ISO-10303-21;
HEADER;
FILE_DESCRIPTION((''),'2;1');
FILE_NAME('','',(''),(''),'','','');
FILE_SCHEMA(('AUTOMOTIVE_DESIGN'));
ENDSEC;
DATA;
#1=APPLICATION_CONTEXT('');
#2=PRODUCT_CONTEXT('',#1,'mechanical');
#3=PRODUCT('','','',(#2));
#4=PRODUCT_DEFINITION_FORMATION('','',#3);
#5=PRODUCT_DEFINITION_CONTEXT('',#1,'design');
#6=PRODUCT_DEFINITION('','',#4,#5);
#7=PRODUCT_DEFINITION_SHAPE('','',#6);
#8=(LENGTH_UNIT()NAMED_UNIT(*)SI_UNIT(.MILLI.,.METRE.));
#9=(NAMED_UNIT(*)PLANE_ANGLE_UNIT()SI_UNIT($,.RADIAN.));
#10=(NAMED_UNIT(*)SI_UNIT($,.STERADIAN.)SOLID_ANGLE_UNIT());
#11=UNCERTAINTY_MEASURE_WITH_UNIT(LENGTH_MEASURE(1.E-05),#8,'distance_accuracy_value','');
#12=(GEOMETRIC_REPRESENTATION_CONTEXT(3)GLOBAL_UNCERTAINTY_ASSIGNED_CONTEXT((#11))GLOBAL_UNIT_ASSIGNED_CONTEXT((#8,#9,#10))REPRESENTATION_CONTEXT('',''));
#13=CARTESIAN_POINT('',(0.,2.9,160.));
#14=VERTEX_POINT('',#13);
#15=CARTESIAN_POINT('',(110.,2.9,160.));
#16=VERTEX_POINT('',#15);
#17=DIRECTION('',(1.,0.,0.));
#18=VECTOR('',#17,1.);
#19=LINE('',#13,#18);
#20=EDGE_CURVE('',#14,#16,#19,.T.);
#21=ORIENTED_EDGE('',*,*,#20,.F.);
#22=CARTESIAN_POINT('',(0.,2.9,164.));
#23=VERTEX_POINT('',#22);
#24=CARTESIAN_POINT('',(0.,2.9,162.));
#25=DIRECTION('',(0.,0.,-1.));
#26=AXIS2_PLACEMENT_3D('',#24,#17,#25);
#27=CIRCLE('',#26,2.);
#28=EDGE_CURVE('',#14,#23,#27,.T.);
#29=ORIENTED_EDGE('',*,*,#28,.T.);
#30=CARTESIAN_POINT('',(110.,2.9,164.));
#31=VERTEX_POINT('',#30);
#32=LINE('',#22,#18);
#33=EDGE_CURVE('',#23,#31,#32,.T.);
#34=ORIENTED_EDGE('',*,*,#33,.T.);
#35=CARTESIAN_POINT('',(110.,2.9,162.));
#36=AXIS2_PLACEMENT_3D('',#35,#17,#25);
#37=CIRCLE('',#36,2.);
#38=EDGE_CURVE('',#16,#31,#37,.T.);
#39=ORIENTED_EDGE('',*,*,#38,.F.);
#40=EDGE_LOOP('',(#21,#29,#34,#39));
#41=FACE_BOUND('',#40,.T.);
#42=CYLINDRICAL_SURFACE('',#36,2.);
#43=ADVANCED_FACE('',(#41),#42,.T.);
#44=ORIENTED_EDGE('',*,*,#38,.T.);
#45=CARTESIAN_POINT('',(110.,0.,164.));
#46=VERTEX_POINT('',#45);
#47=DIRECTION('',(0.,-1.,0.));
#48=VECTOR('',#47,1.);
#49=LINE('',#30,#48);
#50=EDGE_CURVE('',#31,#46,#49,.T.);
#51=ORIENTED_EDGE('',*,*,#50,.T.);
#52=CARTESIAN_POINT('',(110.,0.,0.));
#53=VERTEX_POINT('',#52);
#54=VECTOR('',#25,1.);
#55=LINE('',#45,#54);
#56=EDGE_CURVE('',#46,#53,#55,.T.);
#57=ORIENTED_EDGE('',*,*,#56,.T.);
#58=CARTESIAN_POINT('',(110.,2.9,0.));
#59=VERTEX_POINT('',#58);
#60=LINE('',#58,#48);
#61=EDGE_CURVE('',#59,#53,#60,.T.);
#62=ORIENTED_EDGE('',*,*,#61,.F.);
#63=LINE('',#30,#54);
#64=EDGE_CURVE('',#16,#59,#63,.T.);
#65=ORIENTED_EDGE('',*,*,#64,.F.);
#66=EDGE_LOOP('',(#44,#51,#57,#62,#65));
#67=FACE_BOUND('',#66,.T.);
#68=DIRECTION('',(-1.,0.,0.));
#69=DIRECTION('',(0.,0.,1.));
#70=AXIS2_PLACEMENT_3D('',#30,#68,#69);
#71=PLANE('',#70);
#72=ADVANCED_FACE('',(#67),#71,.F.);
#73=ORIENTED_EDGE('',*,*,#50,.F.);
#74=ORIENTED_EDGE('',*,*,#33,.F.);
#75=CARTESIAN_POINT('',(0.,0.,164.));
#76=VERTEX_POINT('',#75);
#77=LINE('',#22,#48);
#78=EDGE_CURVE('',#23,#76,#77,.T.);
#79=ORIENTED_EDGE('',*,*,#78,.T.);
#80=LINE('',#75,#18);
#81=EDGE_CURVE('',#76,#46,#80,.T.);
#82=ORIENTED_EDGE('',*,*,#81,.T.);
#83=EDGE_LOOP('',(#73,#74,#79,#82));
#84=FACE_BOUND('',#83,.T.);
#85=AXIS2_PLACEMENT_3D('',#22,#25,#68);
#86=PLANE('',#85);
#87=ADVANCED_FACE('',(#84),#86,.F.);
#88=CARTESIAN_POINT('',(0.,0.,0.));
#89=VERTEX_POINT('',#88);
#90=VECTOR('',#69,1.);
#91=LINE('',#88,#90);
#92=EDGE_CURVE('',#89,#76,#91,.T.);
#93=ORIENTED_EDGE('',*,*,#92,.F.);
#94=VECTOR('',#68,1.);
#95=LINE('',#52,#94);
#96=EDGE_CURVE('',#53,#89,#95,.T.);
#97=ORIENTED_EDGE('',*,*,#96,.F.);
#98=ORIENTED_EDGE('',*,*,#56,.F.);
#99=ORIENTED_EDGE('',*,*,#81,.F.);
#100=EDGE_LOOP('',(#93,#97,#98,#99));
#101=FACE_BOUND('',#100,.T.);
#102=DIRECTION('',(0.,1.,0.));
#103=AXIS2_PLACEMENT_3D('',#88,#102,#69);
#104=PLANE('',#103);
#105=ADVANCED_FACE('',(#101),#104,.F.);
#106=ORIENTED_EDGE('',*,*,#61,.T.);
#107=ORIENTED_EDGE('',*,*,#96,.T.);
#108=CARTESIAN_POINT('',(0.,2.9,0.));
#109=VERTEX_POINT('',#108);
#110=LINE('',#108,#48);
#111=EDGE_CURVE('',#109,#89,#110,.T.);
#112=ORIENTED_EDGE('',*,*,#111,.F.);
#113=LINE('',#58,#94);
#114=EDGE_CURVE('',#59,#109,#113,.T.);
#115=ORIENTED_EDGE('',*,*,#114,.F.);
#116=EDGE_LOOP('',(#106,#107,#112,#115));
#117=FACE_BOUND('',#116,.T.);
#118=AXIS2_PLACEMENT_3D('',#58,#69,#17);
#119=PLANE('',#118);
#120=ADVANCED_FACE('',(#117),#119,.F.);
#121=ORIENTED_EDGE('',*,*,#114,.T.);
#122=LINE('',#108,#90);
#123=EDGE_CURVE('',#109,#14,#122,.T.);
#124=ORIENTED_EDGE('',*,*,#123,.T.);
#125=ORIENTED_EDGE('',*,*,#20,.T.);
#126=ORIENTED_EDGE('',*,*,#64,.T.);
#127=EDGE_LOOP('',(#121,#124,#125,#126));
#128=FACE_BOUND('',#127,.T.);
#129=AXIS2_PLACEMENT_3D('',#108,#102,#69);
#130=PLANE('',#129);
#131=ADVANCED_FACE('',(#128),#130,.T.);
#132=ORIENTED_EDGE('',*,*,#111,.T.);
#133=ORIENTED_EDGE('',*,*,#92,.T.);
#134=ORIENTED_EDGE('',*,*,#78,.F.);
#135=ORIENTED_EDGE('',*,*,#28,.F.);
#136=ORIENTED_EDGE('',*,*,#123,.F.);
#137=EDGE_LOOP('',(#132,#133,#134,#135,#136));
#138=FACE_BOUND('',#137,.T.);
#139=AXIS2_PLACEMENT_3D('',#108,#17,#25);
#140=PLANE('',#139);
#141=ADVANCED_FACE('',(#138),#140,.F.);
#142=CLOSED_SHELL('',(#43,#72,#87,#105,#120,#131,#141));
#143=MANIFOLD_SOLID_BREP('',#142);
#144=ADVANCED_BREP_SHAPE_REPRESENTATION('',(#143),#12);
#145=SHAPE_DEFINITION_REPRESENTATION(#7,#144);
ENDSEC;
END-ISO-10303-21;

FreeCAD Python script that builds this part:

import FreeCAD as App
import Part
import Sketcher

doc = App.newDocument("Part")
body = doc.addObject("PartDesign::Body", "Body")

sketch1 = body.newObject("Sketcher::SketchObject", "Sketch")
sketch1.AttachmentSupport = (doc.getObject("XZ_Plane"), [""])
sketch1.MapMode = "FlatFace"
sketch1.addGeometry([
    Part.LineSegment(App.Vector(0, 0, 0), App.Vector(0, 164, 0)),
    Part.LineSegment(App.Vector(0, 164, 0), App.Vector(110, 164, 0)),
    Part.LineSegment(App.Vector(110, 164, 0), App.Vector(110, 0, 0)),
    Part.LineSegment(App.Vector(110, 0, 0), App.Vector(0, 0, 0)),
], False)
sketch1.addConstraint([
    Sketcher.Constraint("Coincident", 0, 2, 1, 1),
    Sketcher.Constraint("Coincident", 1, 2, 2, 1),
    Sketcher.Constraint("Coincident", 2, 2, 3, 1),
    Sketcher.Constraint("Coincident", 3, 2, 0, 1),
    Sketcher.Constraint("Vertical", 0),
    Sketcher.Constraint("Horizontal", 1),
    Sketcher.Constraint("Vertical", 2),
    Sketcher.Constraint("Horizontal", 3),
    Sketcher.Constraint("Coincident", 3, 2, -1, 1),
    Sketcher.Constraint("DistanceX", 1, 1, 1, 2, 110.0),
    Sketcher.Constraint("DistanceY", 0, 1, 0, 2, 164.0),
])
pad1 = body.newObject("PartDesign::Pad", "Pad")
pad1.Profile = sketch1
pad1.Length = 2.9
pad1.Reversed = True

sketch2 = body.newObject("Sketcher::SketchObject", "Sketch001")
sketch2.AttachmentSupport = (doc.getObject("XZ_Plane"), [""])
sketch2.MapMode = "FlatFace"
sketch2.AttachmentOffset = App.Placement(App.Vector(0, 0, -2.9), App.Rotation())
sketch2.addGeometry([
    Part.LineSegment(App.Vector(0, 162, 0), App.Vector(0, 164, 0)),
    Part.LineSegment(App.Vector(0, 164, 0), App.Vector(110, 164, 0)),
    Part.LineSegment(App.Vector(110, 164, 0), App.Vector(110, 162, 0)),
    Part.LineSegment(App.Vector(110, 162, 0), App.Vector(0, 162, 0)),
], False)
sketch2.addGeometry(Part.LineSegment(App.Vector(110, 162, 0), App.Vector(0, 162, 0)), True)
sketch2.addConstraint([
    Sketcher.Constraint("Coincident", 0, 2, 1, 1),
    Sketcher.Constraint("Coincident", 1, 2, 2, 1),
    Sketcher.Constraint("Coincident", 2, 2, 3, 1),
    Sketcher.Constraint("Coincident", 3, 2, 0, 1),
    Sketcher.Constraint("Vertical", 0),
    Sketcher.Constraint("Horizontal", 1),
    Sketcher.Constraint("Vertical", 2),
    Sketcher.Constraint("Horizontal", 3),
    Sketcher.Constraint("Horizontal", 4),
    Sketcher.Constraint("Coincident", 4, 1, 2, 2),
    Sketcher.Constraint("PointOnObject", 0, 2, -2),
    Sketcher.Constraint("PointOnObject", 4, 2, -2),
    Sketcher.Constraint("DistanceX", 1, 1, 1, 2, 110.0),
    Sketcher.Constraint("DistanceY", 0, 1, 0, 2, 2.0),
    Sketcher.Constraint("DistanceY", -1, 1, 0, 2, 164.0),
])
revolution = body.newObject("PartDesign::Revolution", "Revolution")
revolution.Profile = sketch2
revolution.ReferenceAxis = (sketch2, ["Axis0"])
revolution.Angle = 180

doc.recompute()
